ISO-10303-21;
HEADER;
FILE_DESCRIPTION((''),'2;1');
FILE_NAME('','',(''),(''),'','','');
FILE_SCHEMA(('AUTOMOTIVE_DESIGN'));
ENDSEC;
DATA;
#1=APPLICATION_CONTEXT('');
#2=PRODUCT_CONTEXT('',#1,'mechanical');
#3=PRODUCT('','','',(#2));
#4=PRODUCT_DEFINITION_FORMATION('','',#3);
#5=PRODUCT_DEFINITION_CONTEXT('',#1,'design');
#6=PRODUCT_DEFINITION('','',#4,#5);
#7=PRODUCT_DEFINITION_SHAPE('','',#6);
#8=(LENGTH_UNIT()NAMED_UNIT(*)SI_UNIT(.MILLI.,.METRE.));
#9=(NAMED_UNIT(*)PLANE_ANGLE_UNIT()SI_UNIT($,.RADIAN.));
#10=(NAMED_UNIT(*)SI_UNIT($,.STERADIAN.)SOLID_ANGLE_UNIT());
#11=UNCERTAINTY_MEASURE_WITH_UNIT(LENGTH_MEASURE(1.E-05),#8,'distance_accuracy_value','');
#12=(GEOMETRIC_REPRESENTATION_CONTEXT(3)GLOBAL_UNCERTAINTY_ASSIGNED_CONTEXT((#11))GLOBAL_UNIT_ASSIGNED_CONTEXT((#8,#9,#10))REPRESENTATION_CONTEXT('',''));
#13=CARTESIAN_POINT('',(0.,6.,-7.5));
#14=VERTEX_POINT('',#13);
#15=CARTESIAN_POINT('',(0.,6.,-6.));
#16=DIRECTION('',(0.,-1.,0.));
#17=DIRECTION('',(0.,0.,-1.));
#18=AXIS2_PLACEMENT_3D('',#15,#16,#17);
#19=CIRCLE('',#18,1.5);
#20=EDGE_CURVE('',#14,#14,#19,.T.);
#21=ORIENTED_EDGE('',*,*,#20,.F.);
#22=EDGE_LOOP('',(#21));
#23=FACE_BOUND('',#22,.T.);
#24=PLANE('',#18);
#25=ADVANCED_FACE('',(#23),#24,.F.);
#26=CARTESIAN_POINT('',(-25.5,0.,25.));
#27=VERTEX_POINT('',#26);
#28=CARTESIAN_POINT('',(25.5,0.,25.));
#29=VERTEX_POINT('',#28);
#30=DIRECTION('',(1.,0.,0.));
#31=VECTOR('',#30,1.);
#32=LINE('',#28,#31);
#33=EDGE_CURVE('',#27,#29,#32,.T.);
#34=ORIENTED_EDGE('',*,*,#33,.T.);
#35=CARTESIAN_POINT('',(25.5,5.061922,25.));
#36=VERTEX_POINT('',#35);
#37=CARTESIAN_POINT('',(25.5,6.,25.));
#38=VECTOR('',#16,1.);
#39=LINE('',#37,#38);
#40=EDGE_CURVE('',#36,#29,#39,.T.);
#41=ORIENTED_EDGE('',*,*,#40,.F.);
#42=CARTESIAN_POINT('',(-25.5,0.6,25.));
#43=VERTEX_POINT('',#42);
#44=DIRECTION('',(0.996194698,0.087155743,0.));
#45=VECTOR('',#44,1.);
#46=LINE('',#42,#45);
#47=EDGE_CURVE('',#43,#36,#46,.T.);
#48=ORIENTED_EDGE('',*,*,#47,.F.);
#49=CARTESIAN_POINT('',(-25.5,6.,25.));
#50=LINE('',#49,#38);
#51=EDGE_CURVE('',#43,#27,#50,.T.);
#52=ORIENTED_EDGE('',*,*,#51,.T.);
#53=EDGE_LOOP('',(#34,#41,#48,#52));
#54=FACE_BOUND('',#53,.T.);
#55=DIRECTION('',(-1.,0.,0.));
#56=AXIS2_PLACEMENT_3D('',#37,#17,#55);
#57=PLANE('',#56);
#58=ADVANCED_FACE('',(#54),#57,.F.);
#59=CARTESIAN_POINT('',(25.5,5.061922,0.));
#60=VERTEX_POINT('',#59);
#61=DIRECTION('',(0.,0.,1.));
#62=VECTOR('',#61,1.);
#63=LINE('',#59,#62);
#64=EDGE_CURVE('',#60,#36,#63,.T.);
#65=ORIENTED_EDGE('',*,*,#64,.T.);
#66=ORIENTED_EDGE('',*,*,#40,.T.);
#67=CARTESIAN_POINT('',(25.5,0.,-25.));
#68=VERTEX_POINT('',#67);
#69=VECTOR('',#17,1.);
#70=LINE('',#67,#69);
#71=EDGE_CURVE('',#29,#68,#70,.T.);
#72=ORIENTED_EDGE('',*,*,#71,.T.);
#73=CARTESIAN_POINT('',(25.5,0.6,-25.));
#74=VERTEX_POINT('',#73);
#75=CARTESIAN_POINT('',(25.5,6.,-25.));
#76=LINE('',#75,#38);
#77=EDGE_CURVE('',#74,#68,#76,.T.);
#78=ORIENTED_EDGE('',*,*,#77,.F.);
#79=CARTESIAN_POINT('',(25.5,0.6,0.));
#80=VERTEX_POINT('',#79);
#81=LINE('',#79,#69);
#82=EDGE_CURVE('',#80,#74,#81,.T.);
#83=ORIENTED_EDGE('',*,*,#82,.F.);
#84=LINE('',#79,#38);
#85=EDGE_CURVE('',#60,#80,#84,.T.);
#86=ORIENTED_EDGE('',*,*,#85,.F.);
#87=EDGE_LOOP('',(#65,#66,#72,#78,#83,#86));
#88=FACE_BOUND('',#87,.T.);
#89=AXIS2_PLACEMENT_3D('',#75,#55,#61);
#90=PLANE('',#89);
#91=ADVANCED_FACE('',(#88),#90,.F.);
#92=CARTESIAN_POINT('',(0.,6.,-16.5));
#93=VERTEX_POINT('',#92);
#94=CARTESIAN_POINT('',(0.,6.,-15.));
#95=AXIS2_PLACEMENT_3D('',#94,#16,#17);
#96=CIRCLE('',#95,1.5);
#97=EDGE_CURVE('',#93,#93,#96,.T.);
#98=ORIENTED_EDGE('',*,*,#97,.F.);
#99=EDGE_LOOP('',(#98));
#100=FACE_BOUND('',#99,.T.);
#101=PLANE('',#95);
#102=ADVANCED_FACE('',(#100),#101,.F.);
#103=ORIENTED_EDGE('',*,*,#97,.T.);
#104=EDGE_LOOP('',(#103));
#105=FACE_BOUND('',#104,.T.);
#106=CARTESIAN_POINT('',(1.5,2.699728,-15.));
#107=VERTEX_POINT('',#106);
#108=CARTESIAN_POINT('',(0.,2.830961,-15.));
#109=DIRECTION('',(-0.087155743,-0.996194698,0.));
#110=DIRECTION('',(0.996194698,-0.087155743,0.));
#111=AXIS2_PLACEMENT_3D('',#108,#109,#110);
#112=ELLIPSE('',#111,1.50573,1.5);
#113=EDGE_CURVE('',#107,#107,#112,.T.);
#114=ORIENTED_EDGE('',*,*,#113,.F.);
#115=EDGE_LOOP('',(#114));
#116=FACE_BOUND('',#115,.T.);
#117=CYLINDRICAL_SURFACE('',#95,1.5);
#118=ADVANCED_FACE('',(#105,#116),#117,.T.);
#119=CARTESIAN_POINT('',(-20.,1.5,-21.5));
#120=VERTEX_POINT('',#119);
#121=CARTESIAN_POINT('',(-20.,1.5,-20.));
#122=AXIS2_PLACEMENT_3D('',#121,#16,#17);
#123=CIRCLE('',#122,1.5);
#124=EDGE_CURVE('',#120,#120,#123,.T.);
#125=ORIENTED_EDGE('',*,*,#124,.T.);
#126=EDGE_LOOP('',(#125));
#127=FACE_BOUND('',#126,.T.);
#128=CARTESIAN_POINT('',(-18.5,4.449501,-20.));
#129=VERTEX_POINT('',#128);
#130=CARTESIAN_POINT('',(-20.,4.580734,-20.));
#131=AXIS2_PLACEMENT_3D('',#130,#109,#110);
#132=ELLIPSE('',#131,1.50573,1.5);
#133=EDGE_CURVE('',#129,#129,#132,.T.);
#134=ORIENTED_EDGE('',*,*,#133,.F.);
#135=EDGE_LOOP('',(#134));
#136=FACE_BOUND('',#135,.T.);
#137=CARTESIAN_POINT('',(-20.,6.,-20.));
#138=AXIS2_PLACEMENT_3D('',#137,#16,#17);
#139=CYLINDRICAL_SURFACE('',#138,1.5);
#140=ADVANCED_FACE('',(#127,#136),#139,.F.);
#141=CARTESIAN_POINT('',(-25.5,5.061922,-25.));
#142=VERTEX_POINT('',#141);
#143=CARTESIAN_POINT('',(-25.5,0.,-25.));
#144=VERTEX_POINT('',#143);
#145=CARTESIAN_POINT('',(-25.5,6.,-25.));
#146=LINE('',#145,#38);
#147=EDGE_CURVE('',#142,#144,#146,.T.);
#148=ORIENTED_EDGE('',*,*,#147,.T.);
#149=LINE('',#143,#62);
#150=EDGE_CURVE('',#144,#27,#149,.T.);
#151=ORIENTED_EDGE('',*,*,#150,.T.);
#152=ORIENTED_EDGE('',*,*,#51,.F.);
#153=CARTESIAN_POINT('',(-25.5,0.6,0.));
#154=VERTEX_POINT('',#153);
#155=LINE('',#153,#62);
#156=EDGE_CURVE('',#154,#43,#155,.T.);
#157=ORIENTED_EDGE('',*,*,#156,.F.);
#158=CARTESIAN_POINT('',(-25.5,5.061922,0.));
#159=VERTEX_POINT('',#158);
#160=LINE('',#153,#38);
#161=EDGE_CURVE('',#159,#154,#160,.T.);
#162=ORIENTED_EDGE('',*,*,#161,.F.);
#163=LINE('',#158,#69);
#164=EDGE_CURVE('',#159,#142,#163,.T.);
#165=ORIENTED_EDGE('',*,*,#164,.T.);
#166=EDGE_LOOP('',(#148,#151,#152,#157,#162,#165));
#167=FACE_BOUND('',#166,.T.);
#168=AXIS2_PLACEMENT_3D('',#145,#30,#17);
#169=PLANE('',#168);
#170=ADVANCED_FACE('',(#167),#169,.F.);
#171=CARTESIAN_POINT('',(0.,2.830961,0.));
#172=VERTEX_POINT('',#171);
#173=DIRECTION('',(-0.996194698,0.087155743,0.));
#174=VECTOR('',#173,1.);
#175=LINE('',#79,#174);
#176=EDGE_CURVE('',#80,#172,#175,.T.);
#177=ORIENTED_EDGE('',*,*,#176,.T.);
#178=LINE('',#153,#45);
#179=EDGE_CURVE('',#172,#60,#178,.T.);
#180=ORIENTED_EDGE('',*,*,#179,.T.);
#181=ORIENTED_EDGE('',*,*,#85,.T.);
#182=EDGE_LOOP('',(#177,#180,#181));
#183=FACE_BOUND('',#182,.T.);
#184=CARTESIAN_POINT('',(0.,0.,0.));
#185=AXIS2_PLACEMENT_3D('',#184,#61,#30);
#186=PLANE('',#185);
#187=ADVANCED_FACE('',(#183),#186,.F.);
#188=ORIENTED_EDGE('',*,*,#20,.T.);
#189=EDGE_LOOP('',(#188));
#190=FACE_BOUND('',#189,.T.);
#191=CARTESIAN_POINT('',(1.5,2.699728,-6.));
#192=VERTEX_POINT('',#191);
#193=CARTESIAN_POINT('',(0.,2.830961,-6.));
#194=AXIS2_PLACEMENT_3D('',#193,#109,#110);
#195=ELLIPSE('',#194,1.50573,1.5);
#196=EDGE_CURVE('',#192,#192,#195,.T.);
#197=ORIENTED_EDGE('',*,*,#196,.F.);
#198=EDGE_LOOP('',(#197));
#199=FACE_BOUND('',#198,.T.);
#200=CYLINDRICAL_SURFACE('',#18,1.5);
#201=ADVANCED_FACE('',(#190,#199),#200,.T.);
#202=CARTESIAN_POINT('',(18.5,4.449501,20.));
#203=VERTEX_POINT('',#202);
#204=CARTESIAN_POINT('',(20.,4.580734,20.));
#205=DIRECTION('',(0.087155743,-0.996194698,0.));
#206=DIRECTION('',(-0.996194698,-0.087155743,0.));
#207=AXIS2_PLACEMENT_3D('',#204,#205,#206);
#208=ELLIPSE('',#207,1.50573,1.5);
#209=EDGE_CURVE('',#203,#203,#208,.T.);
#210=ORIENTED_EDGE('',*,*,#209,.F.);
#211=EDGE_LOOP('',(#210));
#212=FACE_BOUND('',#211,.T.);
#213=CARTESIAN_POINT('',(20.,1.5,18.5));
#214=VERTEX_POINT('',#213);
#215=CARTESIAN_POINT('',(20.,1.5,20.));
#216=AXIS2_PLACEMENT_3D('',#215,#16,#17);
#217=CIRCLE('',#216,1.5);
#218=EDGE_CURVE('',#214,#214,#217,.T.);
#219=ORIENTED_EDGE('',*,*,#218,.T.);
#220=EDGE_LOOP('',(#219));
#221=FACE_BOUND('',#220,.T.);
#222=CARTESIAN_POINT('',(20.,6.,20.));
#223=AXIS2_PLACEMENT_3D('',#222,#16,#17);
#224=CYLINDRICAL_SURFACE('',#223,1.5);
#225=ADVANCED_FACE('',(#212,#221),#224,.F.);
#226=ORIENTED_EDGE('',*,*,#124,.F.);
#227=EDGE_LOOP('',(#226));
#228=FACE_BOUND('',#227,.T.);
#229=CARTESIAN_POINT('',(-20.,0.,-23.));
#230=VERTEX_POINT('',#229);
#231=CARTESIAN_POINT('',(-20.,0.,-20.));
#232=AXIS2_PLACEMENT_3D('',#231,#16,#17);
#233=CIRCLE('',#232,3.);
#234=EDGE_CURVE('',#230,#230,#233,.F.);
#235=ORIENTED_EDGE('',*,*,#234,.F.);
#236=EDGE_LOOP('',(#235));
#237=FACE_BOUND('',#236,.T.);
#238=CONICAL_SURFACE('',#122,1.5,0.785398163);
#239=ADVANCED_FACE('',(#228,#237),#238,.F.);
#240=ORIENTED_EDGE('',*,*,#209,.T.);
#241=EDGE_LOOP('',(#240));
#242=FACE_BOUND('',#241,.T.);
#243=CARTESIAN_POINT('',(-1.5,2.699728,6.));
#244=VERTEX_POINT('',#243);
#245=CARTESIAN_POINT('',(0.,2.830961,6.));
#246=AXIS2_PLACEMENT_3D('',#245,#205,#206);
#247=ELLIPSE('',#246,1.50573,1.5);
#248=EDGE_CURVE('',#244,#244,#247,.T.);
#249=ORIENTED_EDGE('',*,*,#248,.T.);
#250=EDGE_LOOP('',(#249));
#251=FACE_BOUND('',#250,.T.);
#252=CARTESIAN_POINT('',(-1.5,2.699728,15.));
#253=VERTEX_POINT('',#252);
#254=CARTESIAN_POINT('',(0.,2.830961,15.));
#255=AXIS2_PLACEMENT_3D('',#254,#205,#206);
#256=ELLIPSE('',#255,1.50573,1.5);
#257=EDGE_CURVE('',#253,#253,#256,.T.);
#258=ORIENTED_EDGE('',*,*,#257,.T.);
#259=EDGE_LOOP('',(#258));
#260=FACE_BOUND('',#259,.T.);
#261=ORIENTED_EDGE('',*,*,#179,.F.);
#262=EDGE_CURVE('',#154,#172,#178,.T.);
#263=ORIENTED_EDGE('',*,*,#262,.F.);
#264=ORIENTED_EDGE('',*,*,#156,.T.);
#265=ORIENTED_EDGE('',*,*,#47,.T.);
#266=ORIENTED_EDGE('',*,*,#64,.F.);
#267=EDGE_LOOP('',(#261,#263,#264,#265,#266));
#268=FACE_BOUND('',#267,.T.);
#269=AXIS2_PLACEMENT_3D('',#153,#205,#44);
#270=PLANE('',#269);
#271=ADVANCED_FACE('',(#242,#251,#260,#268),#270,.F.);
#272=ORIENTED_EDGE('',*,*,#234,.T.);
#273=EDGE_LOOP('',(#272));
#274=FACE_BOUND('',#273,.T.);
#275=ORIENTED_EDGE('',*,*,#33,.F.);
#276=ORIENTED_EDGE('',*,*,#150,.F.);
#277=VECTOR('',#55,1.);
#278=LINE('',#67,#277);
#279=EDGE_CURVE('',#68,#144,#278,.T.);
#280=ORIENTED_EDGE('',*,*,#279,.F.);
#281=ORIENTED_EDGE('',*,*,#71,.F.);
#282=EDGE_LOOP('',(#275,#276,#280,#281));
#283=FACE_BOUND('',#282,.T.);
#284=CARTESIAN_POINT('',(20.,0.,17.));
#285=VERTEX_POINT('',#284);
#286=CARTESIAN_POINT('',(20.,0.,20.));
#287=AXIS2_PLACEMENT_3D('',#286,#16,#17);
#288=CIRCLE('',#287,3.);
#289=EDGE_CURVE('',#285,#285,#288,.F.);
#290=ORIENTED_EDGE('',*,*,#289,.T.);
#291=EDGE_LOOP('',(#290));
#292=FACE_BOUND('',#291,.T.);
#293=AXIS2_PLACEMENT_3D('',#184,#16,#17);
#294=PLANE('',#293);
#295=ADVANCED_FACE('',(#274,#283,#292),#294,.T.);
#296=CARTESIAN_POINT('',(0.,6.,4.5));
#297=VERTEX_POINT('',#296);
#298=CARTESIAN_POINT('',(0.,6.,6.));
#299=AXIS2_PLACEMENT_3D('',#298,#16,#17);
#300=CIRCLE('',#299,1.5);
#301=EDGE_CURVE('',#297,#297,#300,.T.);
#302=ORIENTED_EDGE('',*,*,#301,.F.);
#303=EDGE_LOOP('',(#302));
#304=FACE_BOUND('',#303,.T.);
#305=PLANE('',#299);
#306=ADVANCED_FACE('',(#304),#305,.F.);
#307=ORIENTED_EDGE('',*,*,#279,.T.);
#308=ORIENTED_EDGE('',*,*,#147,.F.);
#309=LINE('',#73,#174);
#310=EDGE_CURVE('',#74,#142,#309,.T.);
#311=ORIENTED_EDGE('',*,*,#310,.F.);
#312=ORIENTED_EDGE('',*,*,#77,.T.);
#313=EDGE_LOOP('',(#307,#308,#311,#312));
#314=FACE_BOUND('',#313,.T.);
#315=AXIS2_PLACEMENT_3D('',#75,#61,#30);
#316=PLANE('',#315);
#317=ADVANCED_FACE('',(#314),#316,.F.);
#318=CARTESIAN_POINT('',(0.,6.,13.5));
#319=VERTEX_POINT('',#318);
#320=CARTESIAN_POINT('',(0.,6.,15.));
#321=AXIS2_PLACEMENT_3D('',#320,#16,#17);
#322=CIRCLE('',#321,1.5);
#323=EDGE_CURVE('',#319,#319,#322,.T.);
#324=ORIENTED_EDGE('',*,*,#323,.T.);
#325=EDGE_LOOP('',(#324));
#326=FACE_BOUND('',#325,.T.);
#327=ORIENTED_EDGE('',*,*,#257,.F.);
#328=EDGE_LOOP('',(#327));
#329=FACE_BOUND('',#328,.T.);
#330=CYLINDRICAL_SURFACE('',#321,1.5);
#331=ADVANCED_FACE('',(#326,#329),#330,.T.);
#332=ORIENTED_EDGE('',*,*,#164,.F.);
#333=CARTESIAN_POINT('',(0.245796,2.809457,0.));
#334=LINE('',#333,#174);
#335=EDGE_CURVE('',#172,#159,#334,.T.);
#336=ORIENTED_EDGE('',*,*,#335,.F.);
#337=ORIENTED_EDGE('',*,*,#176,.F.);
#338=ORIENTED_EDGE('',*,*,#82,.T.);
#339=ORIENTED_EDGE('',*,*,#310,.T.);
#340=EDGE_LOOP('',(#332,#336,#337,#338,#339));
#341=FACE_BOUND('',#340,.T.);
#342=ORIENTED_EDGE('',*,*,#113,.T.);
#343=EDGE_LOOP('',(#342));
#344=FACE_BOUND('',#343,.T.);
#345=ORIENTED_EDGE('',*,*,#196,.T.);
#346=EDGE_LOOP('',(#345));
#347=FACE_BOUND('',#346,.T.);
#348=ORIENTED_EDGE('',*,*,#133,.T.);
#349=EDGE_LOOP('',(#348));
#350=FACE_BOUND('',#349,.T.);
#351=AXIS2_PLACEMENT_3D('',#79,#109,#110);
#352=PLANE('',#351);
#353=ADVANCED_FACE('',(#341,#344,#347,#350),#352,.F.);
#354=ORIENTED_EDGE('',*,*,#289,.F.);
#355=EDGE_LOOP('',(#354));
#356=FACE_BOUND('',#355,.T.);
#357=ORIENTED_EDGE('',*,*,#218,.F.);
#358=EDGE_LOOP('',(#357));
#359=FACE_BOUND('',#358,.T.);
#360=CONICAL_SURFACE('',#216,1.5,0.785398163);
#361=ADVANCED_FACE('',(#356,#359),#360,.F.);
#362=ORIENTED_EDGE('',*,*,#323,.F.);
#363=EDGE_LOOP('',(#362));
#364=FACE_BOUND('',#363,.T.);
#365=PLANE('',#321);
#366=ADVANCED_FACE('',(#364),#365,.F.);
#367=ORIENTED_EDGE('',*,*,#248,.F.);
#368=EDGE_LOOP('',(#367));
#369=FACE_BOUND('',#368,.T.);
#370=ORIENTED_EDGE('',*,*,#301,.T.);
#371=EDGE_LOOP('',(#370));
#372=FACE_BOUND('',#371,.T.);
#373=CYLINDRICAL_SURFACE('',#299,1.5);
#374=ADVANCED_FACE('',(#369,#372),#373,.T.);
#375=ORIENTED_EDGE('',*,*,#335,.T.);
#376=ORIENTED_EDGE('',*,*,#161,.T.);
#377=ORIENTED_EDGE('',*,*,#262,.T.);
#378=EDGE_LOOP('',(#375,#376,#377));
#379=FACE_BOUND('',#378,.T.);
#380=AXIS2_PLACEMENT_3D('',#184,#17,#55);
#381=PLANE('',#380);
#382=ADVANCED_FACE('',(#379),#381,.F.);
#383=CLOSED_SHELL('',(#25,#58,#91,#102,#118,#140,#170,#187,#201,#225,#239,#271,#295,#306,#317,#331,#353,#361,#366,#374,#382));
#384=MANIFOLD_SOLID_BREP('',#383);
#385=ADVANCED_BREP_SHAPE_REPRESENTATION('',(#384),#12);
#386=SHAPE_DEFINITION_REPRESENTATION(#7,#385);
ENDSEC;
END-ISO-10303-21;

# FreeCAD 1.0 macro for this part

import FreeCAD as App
import Part
import Sketcher
from FreeCAD import Vector
Q = App.Units.Quantity


def edges_at(feature, points):
    """Names of the edges that pass closest to the given points."""
    edges = feature.Shape.Edges
    near = lambda p: min(range(len(edges)), key=lambda i: edges[i].distToShape(Part.Vertex(*p))[0])
    return sorted({f"Edge{near(p) + 1}" for p in points})

doc = App.newDocument("Part")
body = doc.addObject("PartDesign::Body", "Body")

# Sketch on XZ plane
sketch1 = doc.addObject("Sketcher::SketchObject", "Sketch")
body.addObject(sketch1)
sketch1.AttachmentSupport = (doc.XZ_Plane, [""])
sketch1.MapMode = "FlatFace"
sketch1.addGeometry([
    Part.LineSegment(Vector(-25.5, -25, 0), Vector(-25.5, 25, 0)),
    Part.LineSegment(Vector(-25.5, 25, 0), Vector(25.5, 25, 0)),
    Part.LineSegment(Vector(25.5, 25, 0), Vector(25.5, -25, 0)),
    Part.LineSegment(Vector(25.5, -25, 0), Vector(-25.5, -25, 0)),
], False)
sketch1.addConstraint([
    Sketcher.Constraint("Coincident", 0, 2, 1, 1),
    Sketcher.Constraint("Coincident", 1, 2, 2, 1),
    Sketcher.Constraint("Coincident", 2, 2, 3, 1),
    Sketcher.Constraint("Coincident", 3, 2, 0, 1),
    Sketcher.Constraint("Vertical", 0),
    Sketcher.Constraint("Horizontal", 1),
    Sketcher.Constraint("Vertical", 2),
    Sketcher.Constraint("Horizontal", 3),
    Sketcher.Constraint("Symmetric", 0, 2, 2, 2, -1, 1),
    Sketcher.Constraint("DistanceX", 1, 1, 1, 2, Q("51 mm")),
    Sketcher.Constraint("DistanceY", 0, 1, 0, 2, Q("50 mm")),
])
pad1 = doc.addObject("PartDesign::Pad", "Pad")
body.addObject(pad1)
pad1.Profile = sketch1
pad1.Length = 6
pad1.Reversed = True

# Sketch on XY plane
sketch2 = doc.addObject("Sketcher::SketchObject", "Sketch001")
body.addObject(sketch2)
sketch2.AttachmentSupport = (doc.XY_Plane, [""])
sketch2.MapMode = "FlatFace"
sketch2.AttachmentOffset = App.Placement(Vector(0, 0, 25), App.Rotation())
sketch2.addGeometry([
    Part.LineSegment(Vector(-25.5, 0.6, 0), Vector(25.5, 5.061922, 0)),
    Part.LineSegment(Vector(25.5, 5.061922, 0), Vector(25.5, 6, 0)),
    Part.LineSegment(Vector(25.5, 6, 0), Vector(-25.5, 6, 0)),
    Part.LineSegment(Vector(-25.5, 6, 0), Vector(-25.5, 0.6, 0)),
], False)
sketch2.addConstraint([
    Sketcher.Constraint("Coincident", 0, 2, 1, 1),
    Sketcher.Constraint("Coincident", 1, 2, 2, 1),
    Sketcher.Constraint("Coincident", 2, 2, 3, 1),
    Sketcher.Constraint("Coincident", 3, 2, 0, 1),
    Sketcher.Constraint("Vertical", 1),
    Sketcher.Constraint("Horizontal", 2),
    Sketcher.Constraint("Vertical", 3),
    Sketcher.Constraint("DistanceX", 2, 2, 2, 1, Q("51 mm")),
    Sketcher.Constraint("Angle", 0, Q("5 deg")),
    Sketcher.Constraint("DistanceY", 3, 2, 3, 1, Q("5.4 mm")),
    Sketcher.Constraint("DistanceY", -1, 1, 1, 2, Q("6 mm")),
    Sketcher.Constraint("DistanceX", -1, 1, 0, 2, Q("25.5 mm")),
])
pocket1 = doc.addObject("PartDesign::Pocket", "Pocket")
body.addObject(pocket1)
pocket1.Profile = sketch2
pocket1.Length = 25

# Sketch on XY plane
sketch3 = doc.addObject("Sketcher::SketchObject", "Sketch002")
body.addObject(sketch3)
sketch3.AttachmentSupport = (doc.XY_Plane, [""])
sketch3.MapMode = "FlatFace"
sketch3.AttachmentOffset = App.Placement(Vector(0, 0, -25), App.Rotation())
sketch3.addGeometry([
    Part.LineSegment(Vector(25.5, 0.6, 0), Vector(-25.5, 5.061922, 0)),
    Part.LineSegment(Vector(-25.5, 5.061922, 0), Vector(-25.5, 6, 0)),
    Part.LineSegment(Vector(-25.5, 6, 0), Vector(25.5, 6, 0)),
    Part.LineSegment(Vector(25.5, 6, 0), Vector(25.5, 0.6, 0)),
], False)
sketch3.addConstraint([
    Sketcher.Constraint("Coincident", 0, 2, 1, 1),
    Sketcher.Constraint("Coincident", 1, 2, 2, 1),
    Sketcher.Constraint("Coincident", 2, 2, 3, 1),
    Sketcher.Constraint("Coincident", 3, 2, 0, 1),
    Sketcher.Constraint("Vertical", 1),
    Sketcher.Constraint("Horizontal", 2),
    Sketcher.Constraint("Vertical", 3),
    Sketcher.Constraint("DistanceX", 2, 1, 2, 2, Q("51 mm")),
    Sketcher.Constraint("Angle", 0, Q("175 deg")),
    Sketcher.Constraint("DistanceY", 3, 2, 3, 1, Q("5.4 mm")),
    Sketcher.Constraint("DistanceY", -1, 1, 1, 2, Q("6 mm")),
    Sketcher.Constraint("DistanceX", 0, 2, -1, 1, Q("25.5 mm")),
])
pocket2 = doc.addObject("PartDesign::Pocket", "Pocket001")
body.addObject(pocket2)
pocket2.Profile = sketch3
pocket2.Length = 25
pocket2.Reversed = True

# Sketch on XZ plane
sketch4 = doc.addObject("Sketcher::SketchObject", "Sketch003")
body.addObject(sketch4)
sketch4.AttachmentSupport = (doc.XZ_Plane, [""])
sketch4.MapMode = "FlatFace"
sketch4.addGeometry([
    Part.Circle(Vector(0, 6, 0), Vector(0, 0, 1), 1.5),
    Part.Circle(Vector(0, 15, 0), Vector(0, 0, 1), 1.5),
    Part.Circle(Vector(0, -15, 0), Vector(0, 0, 1), 1.5),
    Part.Circle(Vector(0, -6, 0), Vector(0, 0, 1), 1.5),
], False)
sketch4.addConstraint([
    Sketcher.Constraint("Equal", 0, 1),
    Sketcher.Constraint("Equal", 1, 2),
    Sketcher.Constraint("Equal", 2, 3),
    Sketcher.Constraint("Symmetric", 1, 3, 2, 3, -1, 1),
    Sketcher.Constraint("Symmetric", 0, 3, 3, 3, -1, 1),
    Sketcher.Constraint("PointOnObject", 0, 3, -2),
    Sketcher.Constraint("PointOnObject", 1, 3, -2),
    Sketcher.Constraint("Diameter", 0, Q("3 mm")),
    Sketcher.Constraint("DistanceY", -1, 1, 0, 3, Q("6 mm")),
    Sketcher.Constraint("DistanceY", -1, 1, 1, 3, Q("15 mm")),
])
pad2 = doc.addObject("PartDesign::Pad", "Pad001")
body.addObject(pad2)
pad2.Profile = sketch4
pad2.Length = 6
pad2.Reversed = True

# Sketch on XZ plane
sketch5 = doc.addObject("Sketcher::SketchObject", "Sketch004")
body.addObject(sketch5)
sketch5.AttachmentSupport = (doc.XZ_Plane, [""])
sketch5.MapMode = "FlatFace"
sketch5.addGeometry([
    Part.Circle(Vector(20, 20, 0), Vector(0, 0, 1), 1.5),
    Part.Circle(Vector(-20, -20, 0), Vector(0, 0, 1), 1.5),
], False)
sketch5.addConstraint([
    Sketcher.Constraint("Equal", 0, 1),
    Sketcher.Constraint("Symmetric", 0, 3, 1, 3, -1, 1),
    Sketcher.Constraint("Diameter", 0, Q("3 mm")),
    Sketcher.Constraint("DistanceX", -1, 1, 0, 3, Q("20 mm")),
    Sketcher.Constraint("DistanceY", -1, 1, 0, 3, Q("20 mm")),
])
pocket3 = doc.addObject("PartDesign::Pocket", "Pocket002")
body.addObject(pocket3)
pocket3.Profile = sketch5
pocket3.Type = "ThroughAll"
doc.recompute()

chamfer = doc.addObject("PartDesign::Chamfer", "Chamfer")
body.addObject(chamfer)
chamfer.Base = (pocket3, edges_at(pocket3, [(20, 0, 21.5), (-20, 0, -18.5)]))
chamfer.Size = 1.5

doc.recompute()
